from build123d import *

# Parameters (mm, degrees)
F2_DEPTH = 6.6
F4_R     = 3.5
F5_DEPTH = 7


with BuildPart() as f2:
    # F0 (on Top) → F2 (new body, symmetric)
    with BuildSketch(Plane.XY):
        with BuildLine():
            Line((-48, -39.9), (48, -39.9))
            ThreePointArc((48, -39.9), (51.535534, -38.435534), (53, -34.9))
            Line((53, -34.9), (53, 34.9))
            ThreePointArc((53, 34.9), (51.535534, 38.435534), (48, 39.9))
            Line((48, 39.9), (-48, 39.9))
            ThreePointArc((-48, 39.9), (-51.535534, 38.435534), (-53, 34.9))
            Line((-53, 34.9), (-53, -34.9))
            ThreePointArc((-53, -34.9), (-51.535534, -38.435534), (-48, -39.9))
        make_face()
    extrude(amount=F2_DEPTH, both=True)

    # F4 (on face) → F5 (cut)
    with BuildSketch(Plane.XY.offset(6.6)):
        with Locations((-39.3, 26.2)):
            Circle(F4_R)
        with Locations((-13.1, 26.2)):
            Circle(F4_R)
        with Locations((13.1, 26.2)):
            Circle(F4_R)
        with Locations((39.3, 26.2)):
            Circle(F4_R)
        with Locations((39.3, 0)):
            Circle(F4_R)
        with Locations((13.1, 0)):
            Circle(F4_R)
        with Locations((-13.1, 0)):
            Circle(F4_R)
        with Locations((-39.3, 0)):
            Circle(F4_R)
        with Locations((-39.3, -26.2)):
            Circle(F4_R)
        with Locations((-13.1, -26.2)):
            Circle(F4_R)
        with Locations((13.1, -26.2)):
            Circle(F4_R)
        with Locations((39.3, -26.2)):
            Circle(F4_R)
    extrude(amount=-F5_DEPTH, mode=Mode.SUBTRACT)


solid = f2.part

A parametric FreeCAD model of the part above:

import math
import FreeCAD as App
import Part
import Sketcher

V = App.Vector
Q = App.Units.Quantity

doc = App.newDocument("Part")
params = doc.addObject("Spreadsheet::Sheet", "Params")
for row, (alias, value) in enumerate([
    ("sketch1_radius", "5 mm"),
    ("sketch1_width", "96 mm"),
    ("sketch1_height", "69.8 mm"),
    ("pad1_length", "13.2 mm"),
    ("sketch2_diameter", "7 mm"),
    ("pocket1_length", "7 mm"),
], start=1):
    params.set(f"A{row}", alias)
    params.set(f"B{row}", "=" + value)
    params.setAlias(f"B{row}", alias)

body = doc.addObject("PartDesign::Body", "Body")

sketch1 = doc.addObject("Sketcher::SketchObject", "Sketch")
body.addObject(sketch1)
sketch1.AttachmentSupport = (doc.XY_Plane, [""])
sketch1.MapMode = "FlatFace"
sketch1.addGeometry(Part.LineSegment(V(-48, -39.9, 0), V(48, -39.9, 0)), False)
sketch1.addGeometry(Part.ArcOfCircle(Part.Circle(V(48, -34.9, 0), V(0, 0, 1), 5), math.radians(-90), math.radians(0)), False)
sketch1.addGeometry(Part.LineSegment(V(53, -34.9, 0), V(53, 34.9, 0)), False)
sketch1.addGeometry(Part.ArcOfCircle(Part.Circle(V(48, 34.9, 0), V(0, 0, 1), 5), math.radians(0), math.radians(90)), False)
sketch1.addGeometry(Part.LineSegment(V(48, 39.9, 0), V(-48, 39.9, 0)), False)
sketch1.addGeometry(Part.ArcOfCircle(Part.Circle(V(-48, 34.9, 0), V(0, 0, 1), 5), math.radians(90), math.radians(180)), False)
sketch1.addGeometry(Part.LineSegment(V(-53, 34.9, 0), V(-53, -34.9, 0)), False)
sketch1.addGeometry(Part.ArcOfCircle(Part.Circle(V(-48, -34.9, 0), V(0, 0, 1), 5), math.radians(180), math.radians(270)), False)
sketch1.addConstraint(Sketcher.Constraint("Tangent", 0, 2, 1, 1))
sketch1.addConstraint(Sketcher.Constraint("Tangent", 1, 2, 2, 1))
sketch1.addConstraint(Sketcher.Constraint("Tangent", 2, 2, 3, 1))
sketch1.addConstraint(Sketcher.Constraint("Tangent", 3, 2, 4, 1))
sketch1.addConstraint(Sketcher.Constraint("Tangent", 4, 2, 5, 1))
sketch1.addConstraint(Sketcher.Constraint("Tangent", 5, 2, 6, 1))
sketch1.addConstraint(Sketcher.Constraint("Tangent", 6, 2, 7, 1))
sketch1.addConstraint(Sketcher.Constraint("Tangent", 7, 2, 0, 1))
sketch1.addConstraint(Sketcher.Constraint("Horizontal", 0))
sketch1.addConstraint(Sketcher.Constraint("Vertical", 2))
sketch1.addConstraint(Sketcher.Constraint("Horizontal", 4))
sketch1.addConstraint(Sketcher.Constraint("Vertical", 6))
sketch1.addConstraint(Sketcher.Constraint("Equal", 1, 3))
sketch1.addConstraint(Sketcher.Constraint("Equal", 3, 5))
sketch1.addConstraint(Sketcher.Constraint("Equal", 5, 7))
sketch1.addConstraint(Sketcher.Constraint("Symmetric", 1, 3, 5, 3, -1, 1))
sketch1.addConstraint(Sketcher.Constraint("Radius", 1, Q("5 mm")))
sketch1.addConstraint(Sketcher.Constraint("DistanceX", 0, 1, 0, 2, Q("96 mm")))
sketch1.addConstraint(Sketcher.Constraint("DistanceY", 2, 1, 2, 2, Q("69.8 mm")))
sketch1.setExpression("Constraints[16]", "Params.sketch1_radius")
sketch1.setExpression("Constraints[17]", "Params.sketch1_width")
sketch1.setExpression("Constraints[18]", "Params.sketch1_height")
pad1 = doc.addObject("PartDesign::Pad", "Pad")
body.addObject(pad1)
pad1.Profile = sketch1
pad1.setExpression("Length", "Params.pad1_length")
pad1.Midplane = True

sketch2 = doc.addObject("Sketcher::SketchObject", "Sketch001")
body.addObject(sketch2)
sketch2.AttachmentSupport = (doc.XY_Plane, [""])
sketch2.MapMode = "FlatFace"
sketch2.AttachmentOffset = App.Placement(V(0, 0, 6.6), App.Rotation())
sketch2.addGeometry(Part.Circle(V(-39.3, 26.2, 0), V(0, 0, 1), 3.5), False)
sketch2.addGeometry(Part.Circle(V(-13.1, 26.2, 0), V(0, 0, 1), 3.5), False)
sketch2.addGeometry(Part.Circle(V(13.1, 26.2, 0), V(0, 0, 1), 3.5), False)
sketch2.addGeometry(Part.Circle(V(39.3, 26.2, 0), V(0, 0, 1), 3.5), False)
sketch2.addGeometry(Part.Circle(V(39.3, 0, 0), V(0, 0, 1), 3.5), False)
sketch2.addGeometry(Part.Circle(V(13.1, 0, 0), V(0, 0, 1), 3.5), False)
sketch2.addGeometry(Part.Circle(V(-13.1, 0, 0), V(0, 0, 1), 3.5), False)
sketch2.addGeometry(Part.Circle(V(-39.3, 0, 0), V(0, 0, 1), 3.5), False)
sketch2.addGeometry(Part.Circle(V(-39.3, -26.2, 0), V(0, 0, 1), 3.5), False)
sketch2.addGeometry(Part.Circle(V(-13.1, -26.2, 0), V(0, 0, 1), 3.5), False)
sketch2.addGeometry(Part.Circle(V(13.1, -26.2, 0), V(0, 0, 1), 3.5), False)
sketch2.addGeometry(Part.Circle(V(39.3, -26.2, 0), V(0, 0, 1), 3.5), False)
sketch2.addConstraint(Sketcher.Constraint("Equal", 0, 1))
sketch2.addConstraint(Sketcher.Constraint("Equal", 1, 2))
sketch2.addConstraint(Sketcher.Constraint("Equal", 2, 3))
sketch2.addConstraint(Sketcher.Constraint("Equal", 3, 4))
sketch2.addConstraint(Sketcher.Constraint("Equal", 4, 5))
sketch2.addConstraint(Sketcher.Constraint("Equal", 5, 6))
sketch2.addConstraint(Sketcher.Constraint("Equal", 6, 7))
sketch2.addConstraint(Sketcher.Constraint("Equal", 7, 8))
sketch2.addConstraint(Sketcher.Constraint("Equal", 8, 9))
sketch2.addConstraint(Sketcher.Constraint("Equal", 9, 10))
sketch2.addConstraint(Sketcher.Constraint("Equal", 10, 11))
sketch2.addConstraint(Sketcher.Constraint("Symmetric", 5, 3, 6, 3, -1, 1))
sketch2.addConstraint(Sketcher.Constraint("Symmetric", 4, 3, 7, 3, -1, 1))
sketch2.addConstraint(Sketcher.Constraint("Symmetric", 3, 3, 8, 3, -1, 1))
sketch2.addConstraint(Sketcher.Constraint("Symmetric", 2, 3, 9, 3, -1, 1))
sketch2.addConstraint(Sketcher.Constraint("Symmetric", 1, 3, 10, 3, -1, 1))
sketch2.addConstraint(Sketcher.Constraint("Symmetric", 0, 3, 11, 3, -1, 1))
sketch2.addConstraint(Sketcher.Constraint("Symmetric", 1, 3, 2, 3, -2))
sketch2.addConstraint(Sketcher.Constraint("Symmetric", 0, 3, 3, 3, -2))
sketch2.addConstraint(Sketcher.Constraint("PointOnObject", 4, 3, -1))
sketch2.addConstraint(Sketcher.Constraint("PointOnObject", 5, 3, -1))
sketch2.addConstraint(Sketcher.Constraint("Horizontal", 0, 3, 1, 3))
sketch2.addConstraint(Sketcher.Constraint("Vertical", 3, 3, 4, 3))
sketch2.addConstraint(Sketcher.Constraint("Vertical", 2, 3, 5, 3))
sketch2.addConstraint(Sketcher.Constraint("Diameter", 0, Q("7 mm")))
sketch2.addConstraint(Sketcher.Constraint("DistanceX", 0, 3, -1, 1, Q("39.3 mm")))
sketch2.addConstraint(Sketcher.Constraint("DistanceY", -1, 1, 0, 3, Q("26.2 mm")))
sketch2.addConstraint(Sketcher.Constraint("DistanceX", 1, 3, -1, 1, Q("13.1 mm")))
sketch2.setExpression("Constraints[24]", "Params.sketch2_diameter")
pocket1 = doc.addObject("PartDesign::Pocket", "Pocket")
body.addObject(pocket1)
pocket1.Profile = sketch2
pocket1.setExpression("Length", "Params.pocket1_length")

doc.recompute()
